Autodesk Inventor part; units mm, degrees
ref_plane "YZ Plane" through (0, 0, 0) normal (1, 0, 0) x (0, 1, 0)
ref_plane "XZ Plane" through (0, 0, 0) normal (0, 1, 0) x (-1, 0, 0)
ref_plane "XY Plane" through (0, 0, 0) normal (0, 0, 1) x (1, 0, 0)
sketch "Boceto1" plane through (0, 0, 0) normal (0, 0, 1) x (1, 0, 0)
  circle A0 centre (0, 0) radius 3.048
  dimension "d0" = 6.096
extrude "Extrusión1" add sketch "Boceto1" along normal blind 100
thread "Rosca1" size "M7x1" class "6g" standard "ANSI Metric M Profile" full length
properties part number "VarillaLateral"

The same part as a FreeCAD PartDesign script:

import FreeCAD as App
import Part
import Sketcher
Q = App.Units.Quantity

doc = App.newDocument("Part")
body = doc.addObject("PartDesign::Body", "Body")

# Sketch on XY plane
sketch1 = body.newObject("Sketcher::SketchObject", "Sketch")
sketch1.AttachmentSupport = (doc.getObject("XY_Plane"), [""])
sketch1.MapMode = "FlatFace"
sketch1.addGeometry(Part.Circle(App.Vector(0, 0, 0), App.Vector(0, 0, 1), 3), False)
sketch1.addConstraint([
    Sketcher.Constraint("Coincident", 0, 3, -1, 1),
    Sketcher.Constraint("Diameter", 0, Q("0.24 in")),
])
pad1 = body.newObject("PartDesign::Pad", "Pad")
pad1.Profile = sketch1
pad1.Length = Q("3.9370079 in")

doc.recompute()
